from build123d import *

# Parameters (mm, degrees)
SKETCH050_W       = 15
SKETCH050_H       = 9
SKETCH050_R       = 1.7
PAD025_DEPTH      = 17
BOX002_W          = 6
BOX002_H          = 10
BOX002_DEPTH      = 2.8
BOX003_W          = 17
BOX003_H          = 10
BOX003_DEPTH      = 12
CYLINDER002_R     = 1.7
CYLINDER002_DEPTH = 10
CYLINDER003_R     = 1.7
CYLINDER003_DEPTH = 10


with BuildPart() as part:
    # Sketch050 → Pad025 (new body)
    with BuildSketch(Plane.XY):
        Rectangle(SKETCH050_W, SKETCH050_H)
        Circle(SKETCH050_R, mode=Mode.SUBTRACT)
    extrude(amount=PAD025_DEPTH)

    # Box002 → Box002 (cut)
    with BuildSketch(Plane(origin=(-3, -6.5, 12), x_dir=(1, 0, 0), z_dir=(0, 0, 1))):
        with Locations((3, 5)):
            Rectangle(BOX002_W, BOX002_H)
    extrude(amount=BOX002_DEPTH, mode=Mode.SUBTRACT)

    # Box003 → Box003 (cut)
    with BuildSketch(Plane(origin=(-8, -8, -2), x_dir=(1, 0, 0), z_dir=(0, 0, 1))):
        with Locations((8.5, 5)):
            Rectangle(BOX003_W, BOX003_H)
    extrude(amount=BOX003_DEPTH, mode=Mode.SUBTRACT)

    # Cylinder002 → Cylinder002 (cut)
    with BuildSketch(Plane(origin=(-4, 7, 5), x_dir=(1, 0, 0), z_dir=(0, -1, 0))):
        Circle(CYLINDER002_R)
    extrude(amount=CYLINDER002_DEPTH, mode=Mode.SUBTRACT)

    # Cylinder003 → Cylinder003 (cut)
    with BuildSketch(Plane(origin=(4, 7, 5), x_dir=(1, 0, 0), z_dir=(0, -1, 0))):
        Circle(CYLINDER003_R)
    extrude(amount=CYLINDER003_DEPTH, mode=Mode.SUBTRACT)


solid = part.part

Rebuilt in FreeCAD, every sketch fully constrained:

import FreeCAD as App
import Part
import Sketcher
from FreeCAD import Vector

doc = App.newDocument("Part")
body = doc.addObject("PartDesign::Body", "Body")

# Sketch on XY plane
sketch1 = body.newObject("Sketcher::SketchObject", "Sketch")
sketch1.AttachmentSupport = (doc.getObject("XY_Plane"), [""])
sketch1.MapMode = "FlatFace"
sketch1.addGeometry([
    Part.LineSegment(Vector(-7.5, 4.5, 0), Vector(-7.5, -4.5, 0)),  # 0
    Part.LineSegment(Vector(-7.5, -4.5, 0), Vector(7.5, -4.5, 0)),  # 1
    Part.LineSegment(Vector(7.5, -4.5, 0), Vector(7.5, 4.5, 0)),  # 2
    Part.LineSegment(Vector(7.5, 4.5, 0), Vector(-7.5, 4.5, 0)),  # 3
    Part.Circle(Vector(0, 0, 0), Vector(0, 0, 1), 1.7),  # 4
], False)
sketch1.addConstraint([
    Sketcher.Constraint("Coincident", 0, 2, 1, 1),
    Sketcher.Constraint("Coincident", 1, 2, 2, 1),
    Sketcher.Constraint("Coincident", 2, 2, 3, 1),
    Sketcher.Constraint("Coincident", 3, 2, 0, 1),
    Sketcher.Constraint("Vertical", 0),
    Sketcher.Constraint("Horizontal", 1),
    Sketcher.Constraint("Vertical", 2),
    Sketcher.Constraint("Horizontal", 3),
    Sketcher.Constraint("Coincident", 4, 3, -1, 1),
    Sketcher.Constraint("Symmetric", 0, 2, 2, 2, -1, 1),
    Sketcher.Constraint("Diameter", 4, 3.4),
    Sketcher.Constraint("DistanceX", 1, 1, 1, 2, 15.0),
    Sketcher.Constraint("DistanceY", 0, 2, 0, 1, 9.0),
])
pad1 = body.newObject("PartDesign::Pad", "Pad")
pad1.Profile = sketch1
pad1.Length = 17

# Sketch on XY plane
sketch2 = body.newObject("Sketcher::SketchObject", "Sketch001")
sketch2.AttachmentSupport = (doc.getObject("XY_Plane"), [""])
sketch2.MapMode = "FlatFace"
sketch2.AttachmentOffset = App.Placement(Vector(0, 0, 12), App.Rotation())
sketch2.addGeometry([
    Part.LineSegment(Vector(-3, 3.5, 0), Vector(-3, -6.5, 0)),
    Part.LineSegment(Vector(-3, -6.5, 0), Vector(3, -6.5, 0)),
    Part.LineSegment(Vector(3, -6.5, 0), Vector(3, 3.5, 0)),
    Part.LineSegment(Vector(3, 3.5, 0), Vector(-3, 3.5, 0)),
], False)
sketch2.addConstraint([
    Sketcher.Constraint("Coincident", 0, 2, 1, 1),
    Sketcher.Constraint("Coincident", 1, 2, 2, 1),
    Sketcher.Constraint("Coincident", 2, 2, 3, 1),
    Sketcher.Constraint("Coincident", 3, 2, 0, 1),
    Sketcher.Constraint("Vertical", 0),
    Sketcher.Constraint("Horizontal", 1),
    Sketcher.Constraint("Vertical", 2),
    Sketcher.Constraint("Horizontal", 3),
    Sketcher.Constraint("DistanceX", 1, 1, 1, 2, 6.0),
    Sketcher.Constraint("DistanceY", 0, 2, 0, 1, 10.0),
    Sketcher.Constraint("DistanceX", 0, 2, -1, 1, 3.0),
    Sketcher.Constraint("DistanceY", 0, 2, -1, 1, 6.5),
])
pocket1 = body.newObject("PartDesign::Pocket", "Pocket")
pocket1.Profile = sketch2
pocket1.Length = 2.8
pocket1.Reversed = True

# Sketch on XY plane
sketch3 = body.newObject("Sketcher::SketchObject", "Sketch002")
sketch3.AttachmentSupport = (doc.getObject("XY_Plane"), [""])
sketch3.MapMode = "FlatFace"
sketch3.AttachmentOffset = App.Placement(Vector(0, 0, -2), App.Rotation())
sketch3.addGeometry([
    Part.LineSegment(Vector(-8, 2, 0), Vector(-8, -8, 0)),
    Part.LineSegment(Vector(-8, -8, 0), Vector(9, -8, 0)),
    Part.LineSegment(Vector(9, -8, 0), Vector(9, 2, 0)),
    Part.LineSegment(Vector(9, 2, 0), Vector(-8, 2, 0)),
], False)
sketch3.addConstraint([
    Sketcher.Constraint("Coincident", 0, 2, 1, 1),
    Sketcher.Constraint("Coincident", 1, 2, 2, 1),
    Sketcher.Constraint("Coincident", 2, 2, 3, 1),
    Sketcher.Constraint("Coincident", 3, 2, 0, 1),
    Sketcher.Constraint("Vertical", 0),
    Sketcher.Constraint("Horizontal", 1),
    Sketcher.Constraint("Vertical", 2),
    Sketcher.Constraint("Horizontal", 3),
    Sketcher.Constraint("DistanceX", 1, 1, 1, 2, 17.0),
    Sketcher.Constraint("DistanceY", 0, 2, 0, 1, 10.0),
    Sketcher.Constraint("DistanceX", 0, 2, -1, 1, 8.0),
    Sketcher.Constraint("DistanceY", 0, 2, -1, 1, 8.0),
])
pocket2 = body.newObject("PartDesign::Pocket", "Pocket001")
pocket2.Profile = sketch3
pocket2.Length = 12
pocket2.Reversed = True

# Sketch on XZ plane
sketch4 = body.newObject("Sketcher::SketchObject", "Sketch003")
sketch4.AttachmentSupport = (doc.getObject("XZ_Plane"), [""])
sketch4.MapMode = "FlatFace"
sketch4.AttachmentOffset = App.Placement(Vector(0, 0, -7), App.Rotation())
sketch4.addGeometry(Part.Circle(Vector(-4, 5, 0), Vector(0, 0, 1), 1.7), False)
sketch4.addConstraint([
    Sketcher.Constraint("Diameter", 0, 3.4),
    Sketcher.Constraint("DistanceX", 0, 3, -1, 1, 4.0),
    Sketcher.Constraint("DistanceY", -1, 1, 0, 3, 5.0),
])
pocket3 = body.newObject("PartDesign::Pocket", "Pocket002")
pocket3.Profile = sketch4
pocket3.Length = 10
pocket3.Reversed = True

# Sketch on XZ plane
sketch5 = body.newObject("Sketcher::SketchObject", "Sketch004")
sketch5.AttachmentSupport = (doc.getObject("XZ_Plane"), [""])
sketch5.MapMode = "FlatFace"
sketch5.AttachmentOffset = App.Placement(Vector(0, 0, -7), App.Rotation())
sketch5.addGeometry(Part.Circle(Vector(4, 5, 0), Vector(0, 0, 1), 1.7), False)
sketch5.addConstraint([
    Sketcher.Constraint("Diameter", 0, 3.4),
    Sketcher.Constraint("DistanceX", -1, 1, 0, 3, 4.0),
    Sketcher.Constraint("DistanceY", -1, 1, 0, 3, 5.0),
])
pocket4 = body.newObject("PartDesign::Pocket", "Pocket003")
pocket4.Profile = sketch5
pocket4.Length = 10
pocket4.Reversed = True

doc.recompute()
